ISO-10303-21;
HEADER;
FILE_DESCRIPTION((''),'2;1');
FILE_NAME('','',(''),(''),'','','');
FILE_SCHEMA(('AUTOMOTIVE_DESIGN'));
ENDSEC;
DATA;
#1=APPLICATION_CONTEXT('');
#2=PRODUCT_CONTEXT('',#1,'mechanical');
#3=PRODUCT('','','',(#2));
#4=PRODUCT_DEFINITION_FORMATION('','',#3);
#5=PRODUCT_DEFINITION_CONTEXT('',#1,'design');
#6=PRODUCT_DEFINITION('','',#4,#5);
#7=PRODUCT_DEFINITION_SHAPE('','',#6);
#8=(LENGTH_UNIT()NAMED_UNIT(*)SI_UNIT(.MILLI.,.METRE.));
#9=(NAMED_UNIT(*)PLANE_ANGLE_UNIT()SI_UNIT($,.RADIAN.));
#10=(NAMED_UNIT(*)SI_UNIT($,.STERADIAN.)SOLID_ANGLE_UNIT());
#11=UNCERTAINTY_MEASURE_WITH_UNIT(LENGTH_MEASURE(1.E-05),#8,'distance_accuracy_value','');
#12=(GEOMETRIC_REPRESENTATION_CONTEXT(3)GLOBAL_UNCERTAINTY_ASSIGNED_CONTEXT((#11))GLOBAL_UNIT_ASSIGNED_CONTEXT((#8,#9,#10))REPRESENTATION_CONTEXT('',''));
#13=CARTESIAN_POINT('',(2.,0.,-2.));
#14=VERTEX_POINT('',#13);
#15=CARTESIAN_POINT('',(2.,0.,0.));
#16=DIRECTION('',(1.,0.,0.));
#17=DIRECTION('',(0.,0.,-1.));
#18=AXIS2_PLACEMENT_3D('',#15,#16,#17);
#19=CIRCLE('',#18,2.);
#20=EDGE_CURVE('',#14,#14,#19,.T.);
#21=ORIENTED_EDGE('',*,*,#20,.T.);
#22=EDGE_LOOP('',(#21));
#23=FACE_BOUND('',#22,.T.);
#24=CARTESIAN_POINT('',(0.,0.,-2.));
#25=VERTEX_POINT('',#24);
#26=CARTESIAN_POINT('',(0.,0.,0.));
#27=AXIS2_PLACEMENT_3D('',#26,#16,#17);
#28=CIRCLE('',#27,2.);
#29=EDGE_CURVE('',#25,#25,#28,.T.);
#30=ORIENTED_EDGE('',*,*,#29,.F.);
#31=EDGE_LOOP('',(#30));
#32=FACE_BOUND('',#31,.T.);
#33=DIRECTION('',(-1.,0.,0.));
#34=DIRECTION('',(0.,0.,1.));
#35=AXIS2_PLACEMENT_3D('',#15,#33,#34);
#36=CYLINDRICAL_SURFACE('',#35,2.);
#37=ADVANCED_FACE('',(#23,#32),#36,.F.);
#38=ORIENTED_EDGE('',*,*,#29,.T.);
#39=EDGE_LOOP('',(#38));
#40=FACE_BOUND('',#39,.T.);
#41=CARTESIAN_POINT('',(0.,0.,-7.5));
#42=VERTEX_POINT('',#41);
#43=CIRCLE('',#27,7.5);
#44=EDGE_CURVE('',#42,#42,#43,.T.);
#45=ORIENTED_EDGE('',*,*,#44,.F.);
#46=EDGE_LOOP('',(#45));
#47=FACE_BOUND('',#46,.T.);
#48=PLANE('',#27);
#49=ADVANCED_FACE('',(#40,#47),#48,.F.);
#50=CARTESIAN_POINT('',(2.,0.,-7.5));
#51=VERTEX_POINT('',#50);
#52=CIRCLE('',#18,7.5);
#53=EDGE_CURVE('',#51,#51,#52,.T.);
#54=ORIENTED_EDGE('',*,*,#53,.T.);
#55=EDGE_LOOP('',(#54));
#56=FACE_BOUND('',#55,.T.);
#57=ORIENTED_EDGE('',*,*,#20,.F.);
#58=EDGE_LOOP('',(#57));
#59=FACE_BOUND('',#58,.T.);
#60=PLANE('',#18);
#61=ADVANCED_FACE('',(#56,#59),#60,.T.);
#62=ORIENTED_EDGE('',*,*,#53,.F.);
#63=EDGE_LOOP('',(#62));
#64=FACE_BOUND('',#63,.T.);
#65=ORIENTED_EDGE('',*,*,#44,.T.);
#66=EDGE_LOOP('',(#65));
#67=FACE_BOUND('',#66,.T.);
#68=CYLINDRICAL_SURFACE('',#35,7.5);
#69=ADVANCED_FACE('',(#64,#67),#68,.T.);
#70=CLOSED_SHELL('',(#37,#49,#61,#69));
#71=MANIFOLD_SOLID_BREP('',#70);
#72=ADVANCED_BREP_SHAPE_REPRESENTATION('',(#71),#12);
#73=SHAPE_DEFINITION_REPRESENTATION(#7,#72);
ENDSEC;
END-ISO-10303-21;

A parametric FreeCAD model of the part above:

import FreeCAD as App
import Part
import Sketcher
Q = App.Units.Quantity

doc = App.newDocument("Part")
params = doc.addObject("Spreadsheet::Sheet", "Params")
for row, (alias, value) in enumerate([
    ("sketch1_diameter", "15 mm"),
    ("sketch1_diameter2", "4 mm"),
    ("pad1_length", "2 mm"),
], start=1):
    params.set(f"A{row}", alias)
    params.set(f"B{row}", "=" + value)
    params.setAlias(f"B{row}", alias)

body = doc.addObject("PartDesign::Body", "Body")

# Sketch on YZ plane
sketch1 = body.newObject("Sketcher::SketchObject", "Sketch")
sketch1.AttachmentSupport = (doc.getObject("YZ_Plane"), [""])
sketch1.MapMode = "FlatFace"
sketch1.addGeometry([
    Part.Circle(App.Vector(0, 0, 0), App.Vector(0, 0, 1), 7.5),
    Part.Circle(App.Vector(0, 0, 0), App.Vector(0, 0, 1), 2),
], False)
sketch1.addConstraint([
    Sketcher.Constraint("Coincident", 0, 3, -1, 1),
    Sketcher.Constraint("Coincident", 1, 3, -1, 1),
    Sketcher.Constraint("Diameter", 0, Q("15 mm")),
    Sketcher.Constraint("Diameter", 1, Q("4 mm")),
])
sketch1.setExpression("Constraints[2]", "Params.sketch1_diameter")
sketch1.setExpression("Constraints[3]", "Params.sketch1_diameter2")
pad1 = body.newObject("PartDesign::Pad", "Pad")
pad1.Profile = sketch1
pad1.setExpression("Length", "Params.pad1_length")

doc.recompute()
